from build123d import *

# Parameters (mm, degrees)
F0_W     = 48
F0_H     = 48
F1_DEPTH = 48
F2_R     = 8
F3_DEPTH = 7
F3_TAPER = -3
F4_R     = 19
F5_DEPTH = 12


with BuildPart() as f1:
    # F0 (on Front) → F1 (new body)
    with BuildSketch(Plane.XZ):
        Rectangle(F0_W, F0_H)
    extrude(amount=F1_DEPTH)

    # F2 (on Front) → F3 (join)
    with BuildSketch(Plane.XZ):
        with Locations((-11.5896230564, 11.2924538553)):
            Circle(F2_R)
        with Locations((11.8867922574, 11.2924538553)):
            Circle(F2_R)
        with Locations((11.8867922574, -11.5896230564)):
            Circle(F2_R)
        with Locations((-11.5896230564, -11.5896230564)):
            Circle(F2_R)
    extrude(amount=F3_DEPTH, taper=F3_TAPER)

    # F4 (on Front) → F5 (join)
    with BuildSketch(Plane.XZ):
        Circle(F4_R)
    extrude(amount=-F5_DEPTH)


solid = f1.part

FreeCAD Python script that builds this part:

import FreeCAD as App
import Part
import Sketcher

V = App.Vector

doc = App.newDocument("Part")
body = doc.addObject("PartDesign::Body", "Body")

sketch1 = doc.addObject("Sketcher::SketchObject", "Sketch")
body.addObject(sketch1)
sketch1.AttachmentSupport = (doc.XZ_Plane, [""])
sketch1.MapMode = "FlatFace"
sketch1.addGeometry([
    Part.LineSegment(V(-24, 24, 0), V(-24, -24, 0)),
    Part.LineSegment(V(-24, -24, 0), V(24, -24, 0)),
    Part.LineSegment(V(24, -24, 0), V(24, 24, 0)),
    Part.LineSegment(V(24, 24, 0), V(-24, 24, 0)),
], False)
sketch1.addConstraint([
    Sketcher.Constraint("Coincident", 0, 2, 1, 1),
    Sketcher.Constraint("Coincident", 1, 2, 2, 1),
    Sketcher.Constraint("Coincident", 2, 2, 3, 1),
    Sketcher.Constraint("Coincident", 3, 2, 0, 1),
    Sketcher.Constraint("Vertical", 0),
    Sketcher.Constraint("Horizontal", 1),
    Sketcher.Constraint("Vertical", 2),
    Sketcher.Constraint("Horizontal", 3),
    Sketcher.Constraint("Symmetric", 0, 2, 2, 2, -1, 1),
    Sketcher.Constraint("Equal", 3, 0),
    Sketcher.Constraint("DistanceX", 1, 1, 1, 2, 48.0),
])
pad1 = doc.addObject("PartDesign::Pad", "Pad")
body.addObject(pad1)
pad1.Profile = sketch1
pad1.Length = 48

sketch2 = doc.addObject("Sketcher::SketchObject", "Sketch001")
body.addObject(sketch2)
sketch2.AttachmentSupport = (doc.XZ_Plane, [""])
sketch2.MapMode = "FlatFace"
sketch2.addGeometry([
    Part.Circle(V(-11.589623, 11.292454, 0), V(0, 0, 1), 8),
    Part.Circle(V(11.886792, 11.292454, 0), V(0, 0, 1), 8),
    Part.Circle(V(11.886792, -11.589623, 0), V(0, 0, 1), 8),
    Part.Circle(V(-11.589623, -11.589623, 0), V(0, 0, 1), 8),
], False)
sketch2.addConstraint([
    Sketcher.Constraint("Equal", 0, 1),
    Sketcher.Constraint("Equal", 1, 2),
    Sketcher.Constraint("Equal", 2, 3),
    Sketcher.Constraint("Horizontal", 0, 3, 1, 3),
    Sketcher.Constraint("Horizontal", 2, 3, 3, 3),
    Sketcher.Constraint("Vertical", 1, 3, 2, 3),
    Sketcher.Constraint("Vertical", 0, 3, 3, 3),
    Sketcher.Constraint("Diameter", 0, 16.0),
    Sketcher.Constraint("DistanceX", 0, 3, -1, 1, 11.589623),
    Sketcher.Constraint("DistanceY", -1, 1, 0, 3, 11.292454),
    Sketcher.Constraint("DistanceX", -1, 1, 1, 3, 11.886792),
    Sketcher.Constraint("DistanceY", 2, 3, -1, 1, 11.589623),
])
pad2 = doc.addObject("PartDesign::Pad", "Pad001")
body.addObject(pad2)
pad2.Profile = sketch2
pad2.Length = 7
pad2.TaperAngle = 3

sketch3 = doc.addObject("Sketcher::SketchObject", "Sketch002")
body.addObject(sketch3)
sketch3.AttachmentSupport = (doc.XZ_Plane, [""])
sketch3.MapMode = "FlatFace"
sketch3.addGeometry(Part.Circle(V(0, 0, 0), V(0, 0, 1), 19), False)
sketch3.addConstraint([
    Sketcher.Constraint("Coincident", 0, 3, -1, 1),
    Sketcher.Constraint("Diameter", 0, 38.0),
])
pad3 = doc.addObject("PartDesign::Pad", "Pad002")
body.addObject(pad3)
pad3.Profile = sketch3
pad3.Length = 12
pad3.Reversed = True

doc.recompute()
